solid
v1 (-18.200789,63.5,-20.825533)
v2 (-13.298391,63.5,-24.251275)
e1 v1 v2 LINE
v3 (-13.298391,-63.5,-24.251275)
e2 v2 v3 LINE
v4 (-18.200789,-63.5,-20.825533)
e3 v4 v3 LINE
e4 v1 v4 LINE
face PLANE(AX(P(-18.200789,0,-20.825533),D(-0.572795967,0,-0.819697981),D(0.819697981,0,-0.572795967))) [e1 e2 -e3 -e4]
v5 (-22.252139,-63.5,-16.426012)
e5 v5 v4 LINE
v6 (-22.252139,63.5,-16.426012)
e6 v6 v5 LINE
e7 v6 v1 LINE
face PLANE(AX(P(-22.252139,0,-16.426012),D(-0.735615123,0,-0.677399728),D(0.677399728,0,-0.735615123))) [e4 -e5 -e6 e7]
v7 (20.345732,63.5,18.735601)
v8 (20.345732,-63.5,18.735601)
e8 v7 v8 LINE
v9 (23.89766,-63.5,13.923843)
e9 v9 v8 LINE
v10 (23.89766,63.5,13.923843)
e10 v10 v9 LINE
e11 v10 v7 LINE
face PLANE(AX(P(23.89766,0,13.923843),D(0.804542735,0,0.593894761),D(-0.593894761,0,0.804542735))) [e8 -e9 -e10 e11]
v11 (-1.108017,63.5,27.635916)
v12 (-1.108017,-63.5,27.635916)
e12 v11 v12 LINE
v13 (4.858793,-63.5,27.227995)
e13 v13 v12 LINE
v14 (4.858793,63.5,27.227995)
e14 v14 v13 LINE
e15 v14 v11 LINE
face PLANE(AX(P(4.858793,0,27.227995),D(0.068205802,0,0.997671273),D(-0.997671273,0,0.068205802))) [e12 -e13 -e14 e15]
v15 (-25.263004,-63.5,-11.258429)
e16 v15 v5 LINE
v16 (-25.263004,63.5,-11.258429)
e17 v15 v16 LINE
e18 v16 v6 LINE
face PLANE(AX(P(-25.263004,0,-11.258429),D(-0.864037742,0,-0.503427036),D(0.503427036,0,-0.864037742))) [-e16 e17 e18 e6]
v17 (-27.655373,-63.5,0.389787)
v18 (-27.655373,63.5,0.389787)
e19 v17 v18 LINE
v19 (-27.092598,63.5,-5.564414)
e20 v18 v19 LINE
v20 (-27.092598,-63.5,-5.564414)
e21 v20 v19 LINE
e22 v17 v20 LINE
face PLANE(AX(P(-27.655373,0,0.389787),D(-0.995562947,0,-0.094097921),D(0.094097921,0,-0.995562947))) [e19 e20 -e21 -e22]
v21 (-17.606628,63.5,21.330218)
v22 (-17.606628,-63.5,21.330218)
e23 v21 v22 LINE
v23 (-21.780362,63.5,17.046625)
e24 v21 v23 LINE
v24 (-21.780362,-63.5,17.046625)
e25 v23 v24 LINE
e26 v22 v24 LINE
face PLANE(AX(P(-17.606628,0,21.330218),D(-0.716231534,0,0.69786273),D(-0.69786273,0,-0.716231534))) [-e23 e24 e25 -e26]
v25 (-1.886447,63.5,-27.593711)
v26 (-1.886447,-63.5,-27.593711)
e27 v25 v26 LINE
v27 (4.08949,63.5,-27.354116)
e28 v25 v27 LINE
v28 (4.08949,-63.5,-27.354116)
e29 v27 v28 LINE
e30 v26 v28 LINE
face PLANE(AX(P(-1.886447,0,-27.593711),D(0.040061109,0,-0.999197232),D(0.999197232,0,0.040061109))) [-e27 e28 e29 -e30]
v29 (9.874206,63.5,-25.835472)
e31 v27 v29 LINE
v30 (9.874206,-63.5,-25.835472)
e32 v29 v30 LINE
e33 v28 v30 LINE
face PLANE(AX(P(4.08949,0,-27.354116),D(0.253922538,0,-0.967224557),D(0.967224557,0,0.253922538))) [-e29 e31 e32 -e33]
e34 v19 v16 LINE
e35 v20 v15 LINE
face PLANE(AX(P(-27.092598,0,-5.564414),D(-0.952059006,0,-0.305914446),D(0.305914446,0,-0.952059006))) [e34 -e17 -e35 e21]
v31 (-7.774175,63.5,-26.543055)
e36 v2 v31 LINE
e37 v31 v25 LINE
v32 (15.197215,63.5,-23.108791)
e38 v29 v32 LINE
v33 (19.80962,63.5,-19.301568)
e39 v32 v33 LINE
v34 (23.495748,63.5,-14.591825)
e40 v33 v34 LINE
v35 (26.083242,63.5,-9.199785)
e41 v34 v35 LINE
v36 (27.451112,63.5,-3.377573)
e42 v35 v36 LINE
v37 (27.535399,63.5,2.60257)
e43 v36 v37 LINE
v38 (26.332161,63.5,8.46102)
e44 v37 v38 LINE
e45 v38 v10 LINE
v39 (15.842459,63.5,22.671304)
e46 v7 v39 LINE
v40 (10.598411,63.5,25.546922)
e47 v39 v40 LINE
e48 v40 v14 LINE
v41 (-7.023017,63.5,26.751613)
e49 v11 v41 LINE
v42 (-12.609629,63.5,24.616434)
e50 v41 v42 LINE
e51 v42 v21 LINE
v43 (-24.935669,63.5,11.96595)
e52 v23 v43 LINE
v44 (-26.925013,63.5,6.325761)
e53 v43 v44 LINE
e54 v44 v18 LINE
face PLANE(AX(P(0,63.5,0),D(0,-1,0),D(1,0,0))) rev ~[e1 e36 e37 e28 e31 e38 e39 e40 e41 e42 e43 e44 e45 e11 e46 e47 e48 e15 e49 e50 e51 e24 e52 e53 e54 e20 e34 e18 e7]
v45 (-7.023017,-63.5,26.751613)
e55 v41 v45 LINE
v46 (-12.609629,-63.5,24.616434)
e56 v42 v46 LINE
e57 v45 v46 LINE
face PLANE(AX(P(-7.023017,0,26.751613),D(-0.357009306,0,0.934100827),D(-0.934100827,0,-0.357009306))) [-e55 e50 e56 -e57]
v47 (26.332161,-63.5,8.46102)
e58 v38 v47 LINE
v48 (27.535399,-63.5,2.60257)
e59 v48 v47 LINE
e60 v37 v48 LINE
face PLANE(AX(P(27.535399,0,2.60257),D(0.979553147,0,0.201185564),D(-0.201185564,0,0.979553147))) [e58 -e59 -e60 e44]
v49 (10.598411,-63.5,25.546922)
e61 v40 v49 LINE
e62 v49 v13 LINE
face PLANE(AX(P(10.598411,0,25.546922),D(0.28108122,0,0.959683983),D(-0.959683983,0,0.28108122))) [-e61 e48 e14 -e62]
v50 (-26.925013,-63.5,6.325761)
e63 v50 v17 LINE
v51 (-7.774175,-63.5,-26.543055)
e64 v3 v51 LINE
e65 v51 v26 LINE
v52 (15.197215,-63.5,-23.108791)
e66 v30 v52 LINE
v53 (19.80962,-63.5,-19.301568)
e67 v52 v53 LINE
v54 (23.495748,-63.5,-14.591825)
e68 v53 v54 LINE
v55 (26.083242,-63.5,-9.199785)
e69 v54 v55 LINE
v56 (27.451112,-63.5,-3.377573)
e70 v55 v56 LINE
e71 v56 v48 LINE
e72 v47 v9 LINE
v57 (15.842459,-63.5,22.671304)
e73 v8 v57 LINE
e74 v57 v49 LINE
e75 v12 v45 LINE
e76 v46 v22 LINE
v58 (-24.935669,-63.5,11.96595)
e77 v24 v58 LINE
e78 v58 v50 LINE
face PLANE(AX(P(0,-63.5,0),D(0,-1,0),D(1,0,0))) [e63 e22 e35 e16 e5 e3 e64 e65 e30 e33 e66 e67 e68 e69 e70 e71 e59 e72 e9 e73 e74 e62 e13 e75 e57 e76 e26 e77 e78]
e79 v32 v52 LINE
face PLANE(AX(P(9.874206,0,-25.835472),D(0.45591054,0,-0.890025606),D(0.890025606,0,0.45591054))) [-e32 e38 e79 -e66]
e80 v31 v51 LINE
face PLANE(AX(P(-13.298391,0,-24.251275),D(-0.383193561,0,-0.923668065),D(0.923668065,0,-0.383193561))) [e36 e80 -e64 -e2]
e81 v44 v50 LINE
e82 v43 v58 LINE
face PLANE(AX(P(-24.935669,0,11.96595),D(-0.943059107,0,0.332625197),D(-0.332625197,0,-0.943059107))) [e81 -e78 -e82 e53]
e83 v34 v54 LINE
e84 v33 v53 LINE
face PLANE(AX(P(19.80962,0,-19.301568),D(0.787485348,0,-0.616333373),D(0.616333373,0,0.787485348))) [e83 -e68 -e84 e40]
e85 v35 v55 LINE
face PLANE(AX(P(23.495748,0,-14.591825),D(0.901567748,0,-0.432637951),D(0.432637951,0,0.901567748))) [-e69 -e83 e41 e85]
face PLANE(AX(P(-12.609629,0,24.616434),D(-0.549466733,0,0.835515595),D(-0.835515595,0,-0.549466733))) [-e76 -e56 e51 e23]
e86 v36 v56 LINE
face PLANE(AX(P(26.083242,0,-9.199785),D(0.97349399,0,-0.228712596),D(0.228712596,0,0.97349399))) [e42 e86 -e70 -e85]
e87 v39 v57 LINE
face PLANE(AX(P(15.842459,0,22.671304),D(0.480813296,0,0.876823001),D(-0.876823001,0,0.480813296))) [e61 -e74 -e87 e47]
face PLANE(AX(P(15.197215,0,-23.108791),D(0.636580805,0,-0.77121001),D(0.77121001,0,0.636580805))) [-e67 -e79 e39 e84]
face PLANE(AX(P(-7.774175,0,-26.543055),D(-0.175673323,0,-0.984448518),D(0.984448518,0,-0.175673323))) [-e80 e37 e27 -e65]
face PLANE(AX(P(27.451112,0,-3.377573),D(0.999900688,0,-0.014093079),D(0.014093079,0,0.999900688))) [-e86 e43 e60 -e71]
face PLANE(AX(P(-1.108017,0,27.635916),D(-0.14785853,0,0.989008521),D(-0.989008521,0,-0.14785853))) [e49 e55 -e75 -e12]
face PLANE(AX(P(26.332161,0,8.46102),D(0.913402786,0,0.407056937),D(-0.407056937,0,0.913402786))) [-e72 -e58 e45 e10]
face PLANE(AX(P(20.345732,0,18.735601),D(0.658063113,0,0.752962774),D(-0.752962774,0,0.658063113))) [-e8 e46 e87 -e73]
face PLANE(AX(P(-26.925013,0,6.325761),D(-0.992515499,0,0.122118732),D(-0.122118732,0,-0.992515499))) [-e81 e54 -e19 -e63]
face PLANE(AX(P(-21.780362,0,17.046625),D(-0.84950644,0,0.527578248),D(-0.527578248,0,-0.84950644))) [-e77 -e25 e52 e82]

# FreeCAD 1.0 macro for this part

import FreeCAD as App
import Part
import Sketcher

V = App.Vector
Q = App.Units.Quantity


def add_polygon(sketch, points):
    """Adds a closed chain of lines whose ends are joined by coincident constraints."""
    first, n = sketch.GeometryCount, len(points)
    for a, b in zip(points, points[1:] + points[:1]):
        sketch.addGeometry(Part.LineSegment(App.Vector(*a, 0), App.Vector(*b, 0)), False)
    for i in range(n):
        sketch.addConstraint(Sketcher.Constraint("Coincident", first + i, 2, first + (i + 1) % n, 1))

doc = App.newDocument("Part")
body = doc.addObject("PartDesign::Body", "Body")

sketch1 = body.newObject("Sketcher::SketchObject", "Sketch")
sketch1.AttachmentSupport = (doc.getObject("XZ_Plane"), [""])
sketch1.MapMode = "FlatFace"
add_polygon(sketch1, [(-25.263004, -11.258429), (-22.252139, -16.426012), (-18.200789, -20.825533), (-13.298391, -24.251275), (-7.774175, -26.543055), (-1.886447, -27.593711), (4.08949, -27.354116), (9.874206, -25.835472), (15.197215, -23.108791), (19.80962, -19.301568), (23.495748, -14.591825), (26.083242, -9.199785), (27.451112, -3.377573), (27.535399, 2.60257), (26.332161, 8.46102), (23.89766, 13.923843), (20.345732, 18.735601), (15.842459, 22.671304), (10.598411, 25.546922), (4.858793, 27.227995), (-1.108017, 27.635916), (-7.023017, 26.751613), (-12.609629, 24.616434), (-17.606628, 21.330218), (-21.780362, 17.046625), (-24.935669, 11.96595), (-26.925013, 6.325761), (-27.655373, 0.389787), (-27.092598, -5.564414)])
sketch1.addConstraint(Sketcher.Constraint("DistanceX", 10, 2, 13, 2, Q("0.0098 in")))
sketch1.addConstraint(Sketcher.Constraint("DistanceX", -1, 1, 12, 2, 27.535399))
sketch1.addConstraint(Sketcher.Constraint("DistanceY", -1, 1, 15, 2, 18.735601))
sketch1.addConstraint(Sketcher.Constraint("DistanceY", 4, 2, 0, 2, 11.167699))
sketch1.addConstraint(Sketcher.Constraint("DistanceY", 6, 2, 11, 2, 22.457899))
sketch1.addConstraint(Sketcher.Constraint("DistanceX", 14, 2, 13, 2, 2.434501))
sketch1.addConstraint(Sketcher.Constraint("DistanceX", 16, 2, 14, 2, 8.055201))
sketch1.addConstraint(Sketcher.Constraint("DistanceY", 13, 2, 17, 2, 17.085902))
sketch1.addConstraint(Sketcher.Constraint("DistanceX", 20, 2, 19, 2, 5.915))
sketch1.addConstraint(Sketcher.Constraint("DistanceX", 22, 2, 21, 2, 4.996999))
sketch1.addConstraint(Sketcher.Constraint("DistanceY", 22, 2, 19, 2, 6.305698))
sketch1.addConstraint(Sketcher.Constraint("DistanceY", 0, 2, 26, 2, 16.815799))
sketch1.addConstraint(Sketcher.Constraint("DistanceY", 27, 2, 26, 2, 5.954201))
sketch1.addConstraint(Sketcher.Constraint("Distance", 5, 5.980738))
sketch1.addConstraint(Sketcher.Constraint("Distance", 14, 5.980738))
sketch1.addConstraint(Sketcher.Constraint("DistanceX", 0, 2, -1, 1, 22.252139))
sketch1.addConstraint(Sketcher.Constraint("DistanceY", 0, 2, -1, 1, 16.426012))
sketch1.addConstraint(Sketcher.Constraint("DistanceX", 1, 2, -1, 1, 18.200789))
sketch1.addConstraint(Sketcher.Constraint("DistanceX", 2, 2, -1, 1, 13.298391))
sketch1.addConstraint(Sketcher.Constraint("DistanceX", -1, 1, 5, 2, 4.08949))
sketch1.addConstraint(Sketcher.Constraint("DistanceY", 6, 2, -1, 1, 25.835472))
sketch1.addConstraint(Sketcher.Constraint("DistanceY", 7, 2, -1, 1, 23.108791))
sketch1.addConstraint(Sketcher.Constraint("DistanceX", -1, 1, 8, 2, 19.80962))
sketch1.addConstraint(Sketcher.Constraint("DistanceX", -1, 1, 10, 2, 26.083242))
sketch1.addConstraint(Sketcher.Constraint("DistanceX", -1, 1, 11, 2, 27.451112))
sketch1.addConstraint(Sketcher.Constraint("DistanceY", -1, 1, 12, 2, 2.60257))
sketch1.addConstraint(Sketcher.Constraint("DistanceY", -1, 1, 13, 2, 8.46102))
sketch1.addConstraint(Sketcher.Constraint("DistanceX", -1, 1, 17, 2, 10.598411))
sketch1.addConstraint(Sketcher.Constraint("DistanceX", 21, 2, -1, 1, 12.609629))
sketch1.addConstraint(Sketcher.Constraint("DistanceX", 23, 2, -1, 1, 21.780362))
sketch1.addConstraint(Sketcher.Constraint("DistanceX", 24, 2, -1, 1, 24.935669))
sketch1.addConstraint(Sketcher.Constraint("DistanceY", -1, 1, 24, 2, 11.96595))
sketch1.addConstraint(Sketcher.Constraint("DistanceY", -1, 1, 25, 2, 6.325761))
sketch1.addConstraint(Sketcher.Constraint("DistanceY", 28, 2, -1, 1, 11.258429))
sketch1.addConstraint(Sketcher.Constraint("DistanceY", 1, 2, 0, 2, 4.399521))
sketch1.addConstraint(Sketcher.Constraint("DistanceY", 2, 2, 1, 2, 3.425742))
sketch1.addConstraint(Sketcher.Constraint("DistanceY", 3, 2, 2, 2, 2.29178))
sketch1.addConstraint(Sketcher.Constraint("DistanceX", 1, 2, 4, 2, 16.314342))
sketch1.addConstraint(Sketcher.Constraint("DistanceX", 3, 2, 6, 2, 17.648381))
sketch1.addConstraint(Sketcher.Constraint("DistanceX", 6, 2, 7, 2, 5.323009))
sketch1.addConstraint(Sketcher.Constraint("DistanceY", 5, 2, 8, 2, 8.052548))
sketch1.addConstraint(Sketcher.Constraint("DistanceX", 8, 2, 9, 2, 3.686128))
sketch1.addConstraint(Sketcher.Constraint("DistanceY", 5, 2, 9, 2, 12.762291))
sketch1.addConstraint(Sketcher.Constraint("DistanceY", 9, 2, 10, 2, 5.39204))
sketch1.addConstraint(Sketcher.Constraint("DistanceX", 15, 2, 13, 2, 5.986429))
sketch1.addConstraint(Sketcher.Constraint("DistanceY", 14, 2, 16, 2, 8.747461))
sketch1.addConstraint(Sketcher.Constraint("DistanceY", 16, 2, 18, 2, 4.556691))
sketch1.addConstraint(Sketcher.Constraint("DistanceX", 18, 2, 15, 2, 15.486939))
sketch1.addConstraint(Sketcher.Constraint("DistanceX", 19, 2, 18, 2, 5.96681))
sketch1.addConstraint(Sketcher.Constraint("DistanceY", 18, 2, 19, 2, 0.407921))
sketch1.addConstraint(Sketcher.Constraint("DistanceY", 17, 2, 20, 2, 1.204691))
sketch1.addConstraint(Sketcher.Constraint("DistanceY", 21, 2, 20, 2, 2.135179))
sketch1.addConstraint(Sketcher.Constraint("DistanceY", 23, 2, 21, 2, 7.569809))
sketch1.addConstraint(Sketcher.Constraint("DistanceX", 25, 2, 23, 2, 5.144651))
sketch1.addConstraint(Sketcher.Constraint("DistanceX", 26, 2, 25, 2, 0.73036))
sketch1.addConstraint(Sketcher.Constraint("DistanceX", 27, 2, 0, 2, 4.840459))
sketch1.addConstraint(Sketcher.Constraint("DistanceX", 26, 2, 28, 2, 2.392369))
sketch1.addConstraint(Sketcher.Constraint("Distance", 3, 5.980737))
pad1 = body.newObject("PartDesign::Pad", "Pad")
pad1.Profile = sketch1
pad1.Length = Q("5 in")
pad1.Midplane = True

doc.recompute()
